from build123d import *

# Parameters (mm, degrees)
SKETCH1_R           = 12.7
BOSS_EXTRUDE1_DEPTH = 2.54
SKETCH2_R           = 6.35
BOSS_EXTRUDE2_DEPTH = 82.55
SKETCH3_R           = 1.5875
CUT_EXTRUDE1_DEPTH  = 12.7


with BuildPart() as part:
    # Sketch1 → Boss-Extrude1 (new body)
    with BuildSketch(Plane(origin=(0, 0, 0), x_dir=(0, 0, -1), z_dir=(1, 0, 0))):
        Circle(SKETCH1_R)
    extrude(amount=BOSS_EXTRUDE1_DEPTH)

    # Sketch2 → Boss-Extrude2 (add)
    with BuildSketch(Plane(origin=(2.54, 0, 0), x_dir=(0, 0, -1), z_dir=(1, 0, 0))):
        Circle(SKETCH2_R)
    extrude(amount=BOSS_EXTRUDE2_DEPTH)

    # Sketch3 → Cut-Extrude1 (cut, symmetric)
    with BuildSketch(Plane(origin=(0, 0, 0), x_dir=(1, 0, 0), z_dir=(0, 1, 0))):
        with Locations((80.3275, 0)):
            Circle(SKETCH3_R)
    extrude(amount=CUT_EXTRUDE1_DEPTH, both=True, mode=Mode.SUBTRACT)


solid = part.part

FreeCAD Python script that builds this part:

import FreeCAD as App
import Part
import Sketcher
Q = App.Units.Quantity

doc = App.newDocument("Part")
body = doc.addObject("PartDesign::Body", "Body")

# Sketch on YZ plane
sketch1 = body.newObject("Sketcher::SketchObject", "Sketch")
sketch1.AttachmentSupport = (doc.getObject("YZ_Plane"), [""])
sketch1.MapMode = "FlatFace"
sketch1.addGeometry(Part.Circle(App.Vector(0, 0, 0), App.Vector(0, 0, 1), 13), False)
sketch1.addConstraint(Sketcher.Constraint("Coincident", 0, 3, -1, 1))
sketch1.addConstraint(Sketcher.Constraint("Diameter", 0, Q("1 in")))
pad1 = body.newObject("PartDesign::Pad", "Pad")
pad1.Profile = sketch1
pad1.Length = Q("0.1 in")

# Sketch on YZ plane
sketch2 = body.newObject("Sketcher::SketchObject", "Sketch001")
sketch2.AttachmentSupport = (doc.getObject("YZ_Plane"), [""])
sketch2.MapMode = "FlatFace"
sketch2.AttachmentOffset = App.Placement(App.Vector(0, 0, 0.1 * 25.4), App.Rotation())
sketch2.addGeometry(Part.Circle(App.Vector(0, 0, 0), App.Vector(0, 0, 1), 6), False)
sketch2.addConstraint(Sketcher.Constraint("Coincident", 0, 3, -1, 1))
sketch2.addConstraint(Sketcher.Constraint("Diameter", 0, Q("0.5 in")))
pad2 = body.newObject("PartDesign::Pad", "Pad001")
pad2.Profile = sketch2
pad2.Length = Q("3.25 in")

# Sketch on XZ plane
sketch3 = body.newObject("Sketcher::SketchObject", "Sketch002")
sketch3.AttachmentSupport = (doc.getObject("XZ_Plane"), [""])
sketch3.MapMode = "FlatFace"
sketch3.addGeometry(Part.Circle(App.Vector(80.3, 0, 0), App.Vector(0, 0, 1), 1.6), False)
sketch3.addConstraint(Sketcher.Constraint("PointOnObject", 0, 3, -1))
sketch3.addConstraint(Sketcher.Constraint("Diameter", 0, Q("0.125 in")))
sketch3.addConstraint(Sketcher.Constraint("DistanceX", -1, 1, 0, 3, Q("3.1625 in")))
pocket1 = body.newObject("PartDesign::Pocket", "Pocket")
pocket1.Profile = sketch3
pocket1.Length = Q("1 in")
pocket1.Midplane = True

doc.recompute()
